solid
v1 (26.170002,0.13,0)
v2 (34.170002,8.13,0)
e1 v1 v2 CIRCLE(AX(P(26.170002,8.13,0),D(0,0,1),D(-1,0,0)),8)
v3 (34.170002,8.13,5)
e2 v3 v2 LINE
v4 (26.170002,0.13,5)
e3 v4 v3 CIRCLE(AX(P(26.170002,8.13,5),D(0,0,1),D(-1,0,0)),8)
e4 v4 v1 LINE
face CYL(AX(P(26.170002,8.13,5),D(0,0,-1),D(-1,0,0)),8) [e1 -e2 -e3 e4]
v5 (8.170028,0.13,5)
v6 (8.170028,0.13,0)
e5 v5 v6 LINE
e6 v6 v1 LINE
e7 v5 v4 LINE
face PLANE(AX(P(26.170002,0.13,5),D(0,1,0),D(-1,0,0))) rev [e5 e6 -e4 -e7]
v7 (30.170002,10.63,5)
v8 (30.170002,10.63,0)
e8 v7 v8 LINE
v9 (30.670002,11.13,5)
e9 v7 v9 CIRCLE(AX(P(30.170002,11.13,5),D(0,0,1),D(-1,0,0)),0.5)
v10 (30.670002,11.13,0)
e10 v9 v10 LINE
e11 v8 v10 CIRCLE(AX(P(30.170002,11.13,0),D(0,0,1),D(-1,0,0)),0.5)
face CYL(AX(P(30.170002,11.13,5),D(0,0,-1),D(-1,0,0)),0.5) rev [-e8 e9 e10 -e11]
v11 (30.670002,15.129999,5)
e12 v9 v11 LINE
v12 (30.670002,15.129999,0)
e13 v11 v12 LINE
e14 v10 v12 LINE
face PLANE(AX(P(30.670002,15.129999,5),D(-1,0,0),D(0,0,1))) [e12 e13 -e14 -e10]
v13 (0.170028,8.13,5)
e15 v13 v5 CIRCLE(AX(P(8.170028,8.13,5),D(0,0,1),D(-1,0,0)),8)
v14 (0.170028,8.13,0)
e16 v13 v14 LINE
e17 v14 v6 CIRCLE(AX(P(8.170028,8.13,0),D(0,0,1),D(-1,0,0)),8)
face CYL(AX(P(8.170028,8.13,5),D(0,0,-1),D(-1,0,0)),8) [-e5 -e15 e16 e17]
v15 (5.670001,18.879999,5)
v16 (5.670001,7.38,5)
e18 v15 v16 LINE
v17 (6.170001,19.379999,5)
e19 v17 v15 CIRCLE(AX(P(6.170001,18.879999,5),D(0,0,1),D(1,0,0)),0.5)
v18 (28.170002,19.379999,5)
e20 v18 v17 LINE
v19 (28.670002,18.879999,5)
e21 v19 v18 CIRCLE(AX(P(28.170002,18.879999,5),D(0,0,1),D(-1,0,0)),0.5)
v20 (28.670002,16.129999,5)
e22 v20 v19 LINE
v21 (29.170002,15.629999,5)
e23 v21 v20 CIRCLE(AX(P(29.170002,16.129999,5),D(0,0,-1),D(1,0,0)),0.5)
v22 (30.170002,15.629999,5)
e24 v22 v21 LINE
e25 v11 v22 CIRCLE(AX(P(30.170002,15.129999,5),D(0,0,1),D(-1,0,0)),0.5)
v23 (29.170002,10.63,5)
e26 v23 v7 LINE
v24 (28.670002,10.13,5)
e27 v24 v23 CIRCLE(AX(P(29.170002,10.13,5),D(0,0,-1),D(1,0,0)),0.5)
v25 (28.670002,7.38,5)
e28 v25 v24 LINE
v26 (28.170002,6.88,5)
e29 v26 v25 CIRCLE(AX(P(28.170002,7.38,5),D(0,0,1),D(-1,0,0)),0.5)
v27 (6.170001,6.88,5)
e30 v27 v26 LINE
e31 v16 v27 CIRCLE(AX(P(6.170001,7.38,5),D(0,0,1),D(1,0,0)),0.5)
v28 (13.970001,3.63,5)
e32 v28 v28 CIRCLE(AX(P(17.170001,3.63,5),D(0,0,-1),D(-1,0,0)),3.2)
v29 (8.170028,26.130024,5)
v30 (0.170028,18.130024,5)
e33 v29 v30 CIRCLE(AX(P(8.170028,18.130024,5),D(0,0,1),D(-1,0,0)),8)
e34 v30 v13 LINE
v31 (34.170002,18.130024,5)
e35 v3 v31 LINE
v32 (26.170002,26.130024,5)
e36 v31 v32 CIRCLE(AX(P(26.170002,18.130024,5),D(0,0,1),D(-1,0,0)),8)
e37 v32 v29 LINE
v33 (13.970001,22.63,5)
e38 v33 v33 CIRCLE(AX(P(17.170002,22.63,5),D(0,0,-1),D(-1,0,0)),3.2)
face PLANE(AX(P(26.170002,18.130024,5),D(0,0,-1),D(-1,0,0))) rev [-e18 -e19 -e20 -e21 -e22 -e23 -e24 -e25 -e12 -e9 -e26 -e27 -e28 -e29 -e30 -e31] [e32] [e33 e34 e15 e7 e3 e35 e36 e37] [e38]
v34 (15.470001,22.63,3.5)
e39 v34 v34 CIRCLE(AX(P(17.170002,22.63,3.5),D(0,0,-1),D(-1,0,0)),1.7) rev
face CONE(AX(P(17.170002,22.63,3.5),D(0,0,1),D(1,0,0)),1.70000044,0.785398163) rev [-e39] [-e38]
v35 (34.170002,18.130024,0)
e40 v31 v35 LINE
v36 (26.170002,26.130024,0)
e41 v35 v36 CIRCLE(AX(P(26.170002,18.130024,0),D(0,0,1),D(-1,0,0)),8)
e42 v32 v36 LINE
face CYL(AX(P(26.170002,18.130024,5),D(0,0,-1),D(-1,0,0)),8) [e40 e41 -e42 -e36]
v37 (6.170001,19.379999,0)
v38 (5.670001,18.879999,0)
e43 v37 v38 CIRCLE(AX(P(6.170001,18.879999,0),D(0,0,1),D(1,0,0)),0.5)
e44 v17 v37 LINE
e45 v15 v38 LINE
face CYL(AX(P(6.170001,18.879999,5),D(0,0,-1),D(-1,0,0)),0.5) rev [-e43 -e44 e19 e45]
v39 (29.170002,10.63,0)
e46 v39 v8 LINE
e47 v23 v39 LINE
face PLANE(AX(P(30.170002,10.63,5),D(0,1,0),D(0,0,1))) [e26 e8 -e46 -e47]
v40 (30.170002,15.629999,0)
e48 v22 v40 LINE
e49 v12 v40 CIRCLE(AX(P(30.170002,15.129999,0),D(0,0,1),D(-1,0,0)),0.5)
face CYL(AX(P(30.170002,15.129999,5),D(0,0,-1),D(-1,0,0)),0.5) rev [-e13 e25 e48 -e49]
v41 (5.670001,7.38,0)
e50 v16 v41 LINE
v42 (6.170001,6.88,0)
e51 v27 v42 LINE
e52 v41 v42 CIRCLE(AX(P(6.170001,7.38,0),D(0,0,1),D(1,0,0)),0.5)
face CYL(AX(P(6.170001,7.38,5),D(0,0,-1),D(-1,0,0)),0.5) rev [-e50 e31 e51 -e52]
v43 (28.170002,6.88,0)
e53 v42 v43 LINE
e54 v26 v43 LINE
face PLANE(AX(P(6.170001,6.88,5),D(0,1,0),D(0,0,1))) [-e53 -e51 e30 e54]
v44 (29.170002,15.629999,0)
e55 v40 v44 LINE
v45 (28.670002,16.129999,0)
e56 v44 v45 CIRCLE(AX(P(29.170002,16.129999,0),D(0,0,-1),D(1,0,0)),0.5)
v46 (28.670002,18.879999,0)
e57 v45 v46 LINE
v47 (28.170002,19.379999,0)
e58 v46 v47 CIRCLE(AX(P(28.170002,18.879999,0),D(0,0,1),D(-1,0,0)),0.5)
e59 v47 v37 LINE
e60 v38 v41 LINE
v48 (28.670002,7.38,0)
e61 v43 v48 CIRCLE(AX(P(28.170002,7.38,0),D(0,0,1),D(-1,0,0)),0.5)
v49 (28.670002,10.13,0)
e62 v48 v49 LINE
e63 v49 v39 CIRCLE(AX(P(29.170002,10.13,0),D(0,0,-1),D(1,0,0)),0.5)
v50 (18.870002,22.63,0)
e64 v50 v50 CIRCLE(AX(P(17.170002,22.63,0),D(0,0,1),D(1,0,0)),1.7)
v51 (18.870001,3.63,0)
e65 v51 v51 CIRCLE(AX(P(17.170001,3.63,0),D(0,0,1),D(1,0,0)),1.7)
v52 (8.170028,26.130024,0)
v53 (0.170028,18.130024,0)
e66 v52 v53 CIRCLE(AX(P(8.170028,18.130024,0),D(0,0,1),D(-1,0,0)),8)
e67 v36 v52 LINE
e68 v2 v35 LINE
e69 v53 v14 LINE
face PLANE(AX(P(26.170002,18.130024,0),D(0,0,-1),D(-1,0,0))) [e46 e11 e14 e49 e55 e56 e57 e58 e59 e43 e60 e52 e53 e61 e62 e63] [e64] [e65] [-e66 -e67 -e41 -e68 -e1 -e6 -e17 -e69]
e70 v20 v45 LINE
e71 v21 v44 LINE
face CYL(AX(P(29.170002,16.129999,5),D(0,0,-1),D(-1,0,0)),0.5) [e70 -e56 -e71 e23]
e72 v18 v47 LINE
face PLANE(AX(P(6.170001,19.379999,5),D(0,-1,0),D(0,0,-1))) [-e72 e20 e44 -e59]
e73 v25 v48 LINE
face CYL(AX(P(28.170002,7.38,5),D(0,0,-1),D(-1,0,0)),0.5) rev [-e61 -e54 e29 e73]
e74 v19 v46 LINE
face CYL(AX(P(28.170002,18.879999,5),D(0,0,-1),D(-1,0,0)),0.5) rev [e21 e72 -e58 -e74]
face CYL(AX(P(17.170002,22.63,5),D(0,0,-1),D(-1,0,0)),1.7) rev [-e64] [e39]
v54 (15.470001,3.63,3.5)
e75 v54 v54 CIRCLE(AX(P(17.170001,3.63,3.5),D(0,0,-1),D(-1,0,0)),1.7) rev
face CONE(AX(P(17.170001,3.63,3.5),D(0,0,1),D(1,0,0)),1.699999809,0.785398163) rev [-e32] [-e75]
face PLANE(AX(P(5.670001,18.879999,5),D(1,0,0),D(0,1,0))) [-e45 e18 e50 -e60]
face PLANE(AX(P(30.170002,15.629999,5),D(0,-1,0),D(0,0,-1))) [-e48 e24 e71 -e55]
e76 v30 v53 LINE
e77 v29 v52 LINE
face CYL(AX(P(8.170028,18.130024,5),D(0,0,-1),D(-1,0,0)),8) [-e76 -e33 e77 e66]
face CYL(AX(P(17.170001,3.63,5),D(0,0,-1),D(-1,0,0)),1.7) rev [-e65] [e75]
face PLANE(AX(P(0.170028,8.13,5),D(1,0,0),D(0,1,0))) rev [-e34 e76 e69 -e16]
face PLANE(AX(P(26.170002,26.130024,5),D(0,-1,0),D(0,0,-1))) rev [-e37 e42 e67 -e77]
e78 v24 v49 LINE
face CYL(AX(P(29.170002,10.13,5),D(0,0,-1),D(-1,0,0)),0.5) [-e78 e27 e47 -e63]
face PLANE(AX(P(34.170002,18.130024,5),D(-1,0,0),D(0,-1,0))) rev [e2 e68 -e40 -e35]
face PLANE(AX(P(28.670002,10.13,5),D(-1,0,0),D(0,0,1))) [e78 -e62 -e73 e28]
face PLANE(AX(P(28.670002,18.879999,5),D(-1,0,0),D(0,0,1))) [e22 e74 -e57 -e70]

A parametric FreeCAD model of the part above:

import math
import FreeCAD as App
import Part
import Sketcher
Q = App.Units.Quantity


def edges_at(feature, points):
    """Names of the edges that pass closest to the given points."""
    edges = feature.Shape.Edges
    near = lambda p: min(range(len(edges)), key=lambda i: edges[i].distToShape(Part.Vertex(*p))[0])
    return sorted({f"Edge{near(p) + 1}" for p in points})

doc = App.newDocument("Part")
body = doc.addObject("PartDesign::Body", "Body")

sketch1 = body.newObject("Sketcher::SketchObject", "Sketch")
sketch1.AttachmentSupport = (doc.getObject("XY_Plane"), [""])
sketch1.MapMode = "FlatFace"
sketch1.addGeometry([
    Part.LineSegment(App.Vector(34.17, 8.13, 0), App.Vector(34.17, 18.13, 0)),
    Part.ArcOfCircle(Part.Circle(App.Vector(26.17, 18.13, 0), App.Vector(0, 0, 1), 8), math.radians(0), math.radians(90)),
    Part.LineSegment(App.Vector(26.17, 26.13, 0), App.Vector(8.17, 26.13, 0)),
    Part.ArcOfCircle(Part.Circle(App.Vector(8.17, 18.13, 0), App.Vector(0, 0, 1), 8), math.radians(90), math.radians(180)),
    Part.LineSegment(App.Vector(0.17, 18.13, 0), App.Vector(0.17, 8.13, 0)),
    Part.ArcOfCircle(Part.Circle(App.Vector(8.17, 8.13, 0), App.Vector(0, 0, 1), 8), math.radians(180), math.radians(270)),
    Part.LineSegment(App.Vector(8.17, 0.13, 0), App.Vector(26.17, 0.13, 0)),
    Part.ArcOfCircle(Part.Circle(App.Vector(26.17, 8.13, 0), App.Vector(0, 0, 1), 8), math.radians(-90), math.radians(0)),
    Part.Circle(App.Vector(17.17, 3.63, 0), App.Vector(0, 0, 1), 1.7),
    Part.ArcOfCircle(Part.Circle(App.Vector(30.17, 15.13, 0), App.Vector(0, 0, 1), 0.5), math.radians(0), math.radians(90)),
    Part.LineSegment(App.Vector(30.67, 15.13, 0), App.Vector(30.67, 11.13, 0)),
    Part.ArcOfCircle(Part.Circle(App.Vector(30.17, 11.13, 0), App.Vector(0, 0, 1), 0.5), math.radians(-90), math.radians(0)),
    Part.LineSegment(App.Vector(30.17, 10.63, 0), App.Vector(29.17, 10.63, 0)),
    Part.ArcOfCircle(Part.Circle(App.Vector(29.17, 10.13, 0), App.Vector(0, 0, 1), 0.5), math.radians(90), math.radians(180)),
    Part.LineSegment(App.Vector(28.67, 10.13, 0), App.Vector(28.67, 7.38, 0)),
    Part.ArcOfCircle(Part.Circle(App.Vector(28.17, 7.38, 0), App.Vector(0, 0, 1), 0.5), math.radians(-90), math.radians(0)),
    Part.LineSegment(App.Vector(28.17, 6.88, 0), App.Vector(6.17, 6.88, 0)),
    Part.ArcOfCircle(Part.Circle(App.Vector(6.17, 7.38, 0), App.Vector(0, 0, 1), 0.5), math.radians(180), math.radians(270)),
    Part.LineSegment(App.Vector(5.67, 7.38, 0), App.Vector(5.67, 18.88, 0)),
    Part.ArcOfCircle(Part.Circle(App.Vector(6.17, 18.88, 0), App.Vector(0, 0, 1), 0.5), math.radians(90), math.radians(180)),
    Part.LineSegment(App.Vector(6.17, 19.38, 0), App.Vector(28.17, 19.38, 0)),
    Part.ArcOfCircle(Part.Circle(App.Vector(28.17, 18.88, 0), App.Vector(0, 0, 1), 0.5), math.radians(0), math.radians(90)),
    Part.LineSegment(App.Vector(28.67, 18.88, 0), App.Vector(28.67, 16.13, 0)),
    Part.ArcOfCircle(Part.Circle(App.Vector(29.17, 16.13, 0), App.Vector(0, 0, 1), 0.5), math.radians(180), math.radians(270)),
    Part.LineSegment(App.Vector(29.17, 15.63, 0), App.Vector(30.17, 15.63, 0)),
    Part.Circle(App.Vector(17.17, 22.63, 0), App.Vector(0, 0, 1), 1.7),
], False)
sketch1.addConstraint([
    Sketcher.Constraint("Tangent", 0, 2, 1, 1),
    Sketcher.Constraint("Tangent", 1, 2, 2, 1),
    Sketcher.Constraint("Tangent", 2, 2, 3, 1),
    Sketcher.Constraint("Tangent", 3, 2, 4, 1),
    Sketcher.Constraint("Tangent", 4, 2, 5, 1),
    Sketcher.Constraint("Tangent", 5, 2, 6, 1),
    Sketcher.Constraint("Tangent", 6, 2, 7, 1),
    Sketcher.Constraint("Tangent", 7, 2, 0, 1),
    Sketcher.Constraint("Tangent", 9, 1, 10, 1),
    Sketcher.Constraint("Tangent", 10, 2, 11, 2),
    Sketcher.Constraint("Tangent", 11, 1, 12, 1),
    Sketcher.Constraint("Tangent", 12, 2, 13, 1),
    Sketcher.Constraint("Tangent", 13, 2, 14, 1),
    Sketcher.Constraint("Tangent", 14, 2, 15, 2),
    Sketcher.Constraint("Tangent", 15, 1, 16, 1),
    Sketcher.Constraint("Tangent", 16, 2, 17, 2),
    Sketcher.Constraint("Tangent", 17, 1, 18, 1),
    Sketcher.Constraint("Tangent", 18, 2, 19, 2),
    Sketcher.Constraint("Tangent", 19, 1, 20, 1),
    Sketcher.Constraint("Tangent", 20, 2, 21, 2),
    Sketcher.Constraint("Tangent", 21, 1, 22, 1),
    Sketcher.Constraint("Tangent", 22, 2, 23, 1),
    Sketcher.Constraint("Tangent", 23, 2, 24, 1),
    Sketcher.Constraint("Tangent", 24, 2, 9, 2),
    Sketcher.Constraint("Vertical", 0),
    Sketcher.Constraint("Horizontal", 2),
    Sketcher.Constraint("Vertical", 4),
    Sketcher.Constraint("Horizontal", 6),
    Sketcher.Constraint("Vertical", 10),
    Sketcher.Constraint("Horizontal", 12),
    Sketcher.Constraint("Vertical", 14),
    Sketcher.Constraint("Horizontal", 16),
    Sketcher.Constraint("Vertical", 18),
    Sketcher.Constraint("Horizontal", 20),
    Sketcher.Constraint("Vertical", 22),
    Sketcher.Constraint("Horizontal", 24),
    Sketcher.Constraint("Equal", 1, 3),
    Sketcher.Constraint("Equal", 3, 5),
    Sketcher.Constraint("Equal", 5, 7),
    Sketcher.Constraint("Equal", 9, 11),
    Sketcher.Constraint("Equal", 11, 13),
    Sketcher.Constraint("Equal", 13, 15),
    Sketcher.Constraint("Equal", 15, 17),
    Sketcher.Constraint("Equal", 17, 19),
    Sketcher.Constraint("Equal", 19, 21),
    Sketcher.Constraint("Equal", 21, 23),
    Sketcher.Constraint("Equal", 8, 25),
    Sketcher.Constraint("Vertical", 15, 3, 21, 3),
    Sketcher.Constraint("Vertical", 8, 3, 25, 3),
    Sketcher.Constraint("Equal", 14, 22),
    Sketcher.Constraint("Radius", 1, Q("8 mm")),
    Sketcher.Constraint("Diameter", 8, Q("3.4 mm")),
    Sketcher.Constraint("Radius", 9, Q("0.5 mm")),
    Sketcher.Constraint("DistanceX", 12, 2, 12, 1, Q("1 mm")),
    Sketcher.Constraint("DistanceX", 16, 2, 16, 1, Q("22.000001 mm")),
    Sketcher.Constraint("DistanceY", 10, 2, 10, 1, Q("3.999999 mm")),
    Sketcher.Constraint("DistanceY", 18, 1, 18, 2, Q("11.5 mm")),
    Sketcher.Constraint("DistanceX", 8, 3, 7, 3, Q("9.000001 mm")),
    Sketcher.Constraint("DistanceX", 1, 3, 9, 3, Q("4 mm")),
    Sketcher.Constraint("DistanceY", 7, 3, 9, 3, Q("7 mm")),
    Sketcher.Constraint("DistanceY", 8, 3, 5, 3, Q("4.499999 mm")),
    Sketcher.Constraint("DistanceY", 23, 3, 25, 3, Q("6.500001 mm")),
    Sketcher.Constraint("DistanceX", -1, 1, 1, 3, Q("26.170002 mm")),
    Sketcher.Constraint("DistanceY", -1, 1, 5, 3, Q("8.13 mm")),
    Sketcher.Constraint("DistanceX", 2, 2, 2, 1, Q("17.999974 mm")),
    Sketcher.Constraint("DistanceY", 0, 1, 0, 2, Q("10.000025 mm")),
])
pad1 = body.newObject("PartDesign::Pad", "Pad")
pad1.Profile = sketch1
pad1.Length = 5
doc.recompute()

chamfer = body.newObject("PartDesign::Chamfer", "Chamfer")
chamfer.Base = (pad1, edges_at(pad1, [(15.47, 3.63, 5), (15.47, 22.63, 5)]))
chamfer.Size = 1.5

doc.recompute()
